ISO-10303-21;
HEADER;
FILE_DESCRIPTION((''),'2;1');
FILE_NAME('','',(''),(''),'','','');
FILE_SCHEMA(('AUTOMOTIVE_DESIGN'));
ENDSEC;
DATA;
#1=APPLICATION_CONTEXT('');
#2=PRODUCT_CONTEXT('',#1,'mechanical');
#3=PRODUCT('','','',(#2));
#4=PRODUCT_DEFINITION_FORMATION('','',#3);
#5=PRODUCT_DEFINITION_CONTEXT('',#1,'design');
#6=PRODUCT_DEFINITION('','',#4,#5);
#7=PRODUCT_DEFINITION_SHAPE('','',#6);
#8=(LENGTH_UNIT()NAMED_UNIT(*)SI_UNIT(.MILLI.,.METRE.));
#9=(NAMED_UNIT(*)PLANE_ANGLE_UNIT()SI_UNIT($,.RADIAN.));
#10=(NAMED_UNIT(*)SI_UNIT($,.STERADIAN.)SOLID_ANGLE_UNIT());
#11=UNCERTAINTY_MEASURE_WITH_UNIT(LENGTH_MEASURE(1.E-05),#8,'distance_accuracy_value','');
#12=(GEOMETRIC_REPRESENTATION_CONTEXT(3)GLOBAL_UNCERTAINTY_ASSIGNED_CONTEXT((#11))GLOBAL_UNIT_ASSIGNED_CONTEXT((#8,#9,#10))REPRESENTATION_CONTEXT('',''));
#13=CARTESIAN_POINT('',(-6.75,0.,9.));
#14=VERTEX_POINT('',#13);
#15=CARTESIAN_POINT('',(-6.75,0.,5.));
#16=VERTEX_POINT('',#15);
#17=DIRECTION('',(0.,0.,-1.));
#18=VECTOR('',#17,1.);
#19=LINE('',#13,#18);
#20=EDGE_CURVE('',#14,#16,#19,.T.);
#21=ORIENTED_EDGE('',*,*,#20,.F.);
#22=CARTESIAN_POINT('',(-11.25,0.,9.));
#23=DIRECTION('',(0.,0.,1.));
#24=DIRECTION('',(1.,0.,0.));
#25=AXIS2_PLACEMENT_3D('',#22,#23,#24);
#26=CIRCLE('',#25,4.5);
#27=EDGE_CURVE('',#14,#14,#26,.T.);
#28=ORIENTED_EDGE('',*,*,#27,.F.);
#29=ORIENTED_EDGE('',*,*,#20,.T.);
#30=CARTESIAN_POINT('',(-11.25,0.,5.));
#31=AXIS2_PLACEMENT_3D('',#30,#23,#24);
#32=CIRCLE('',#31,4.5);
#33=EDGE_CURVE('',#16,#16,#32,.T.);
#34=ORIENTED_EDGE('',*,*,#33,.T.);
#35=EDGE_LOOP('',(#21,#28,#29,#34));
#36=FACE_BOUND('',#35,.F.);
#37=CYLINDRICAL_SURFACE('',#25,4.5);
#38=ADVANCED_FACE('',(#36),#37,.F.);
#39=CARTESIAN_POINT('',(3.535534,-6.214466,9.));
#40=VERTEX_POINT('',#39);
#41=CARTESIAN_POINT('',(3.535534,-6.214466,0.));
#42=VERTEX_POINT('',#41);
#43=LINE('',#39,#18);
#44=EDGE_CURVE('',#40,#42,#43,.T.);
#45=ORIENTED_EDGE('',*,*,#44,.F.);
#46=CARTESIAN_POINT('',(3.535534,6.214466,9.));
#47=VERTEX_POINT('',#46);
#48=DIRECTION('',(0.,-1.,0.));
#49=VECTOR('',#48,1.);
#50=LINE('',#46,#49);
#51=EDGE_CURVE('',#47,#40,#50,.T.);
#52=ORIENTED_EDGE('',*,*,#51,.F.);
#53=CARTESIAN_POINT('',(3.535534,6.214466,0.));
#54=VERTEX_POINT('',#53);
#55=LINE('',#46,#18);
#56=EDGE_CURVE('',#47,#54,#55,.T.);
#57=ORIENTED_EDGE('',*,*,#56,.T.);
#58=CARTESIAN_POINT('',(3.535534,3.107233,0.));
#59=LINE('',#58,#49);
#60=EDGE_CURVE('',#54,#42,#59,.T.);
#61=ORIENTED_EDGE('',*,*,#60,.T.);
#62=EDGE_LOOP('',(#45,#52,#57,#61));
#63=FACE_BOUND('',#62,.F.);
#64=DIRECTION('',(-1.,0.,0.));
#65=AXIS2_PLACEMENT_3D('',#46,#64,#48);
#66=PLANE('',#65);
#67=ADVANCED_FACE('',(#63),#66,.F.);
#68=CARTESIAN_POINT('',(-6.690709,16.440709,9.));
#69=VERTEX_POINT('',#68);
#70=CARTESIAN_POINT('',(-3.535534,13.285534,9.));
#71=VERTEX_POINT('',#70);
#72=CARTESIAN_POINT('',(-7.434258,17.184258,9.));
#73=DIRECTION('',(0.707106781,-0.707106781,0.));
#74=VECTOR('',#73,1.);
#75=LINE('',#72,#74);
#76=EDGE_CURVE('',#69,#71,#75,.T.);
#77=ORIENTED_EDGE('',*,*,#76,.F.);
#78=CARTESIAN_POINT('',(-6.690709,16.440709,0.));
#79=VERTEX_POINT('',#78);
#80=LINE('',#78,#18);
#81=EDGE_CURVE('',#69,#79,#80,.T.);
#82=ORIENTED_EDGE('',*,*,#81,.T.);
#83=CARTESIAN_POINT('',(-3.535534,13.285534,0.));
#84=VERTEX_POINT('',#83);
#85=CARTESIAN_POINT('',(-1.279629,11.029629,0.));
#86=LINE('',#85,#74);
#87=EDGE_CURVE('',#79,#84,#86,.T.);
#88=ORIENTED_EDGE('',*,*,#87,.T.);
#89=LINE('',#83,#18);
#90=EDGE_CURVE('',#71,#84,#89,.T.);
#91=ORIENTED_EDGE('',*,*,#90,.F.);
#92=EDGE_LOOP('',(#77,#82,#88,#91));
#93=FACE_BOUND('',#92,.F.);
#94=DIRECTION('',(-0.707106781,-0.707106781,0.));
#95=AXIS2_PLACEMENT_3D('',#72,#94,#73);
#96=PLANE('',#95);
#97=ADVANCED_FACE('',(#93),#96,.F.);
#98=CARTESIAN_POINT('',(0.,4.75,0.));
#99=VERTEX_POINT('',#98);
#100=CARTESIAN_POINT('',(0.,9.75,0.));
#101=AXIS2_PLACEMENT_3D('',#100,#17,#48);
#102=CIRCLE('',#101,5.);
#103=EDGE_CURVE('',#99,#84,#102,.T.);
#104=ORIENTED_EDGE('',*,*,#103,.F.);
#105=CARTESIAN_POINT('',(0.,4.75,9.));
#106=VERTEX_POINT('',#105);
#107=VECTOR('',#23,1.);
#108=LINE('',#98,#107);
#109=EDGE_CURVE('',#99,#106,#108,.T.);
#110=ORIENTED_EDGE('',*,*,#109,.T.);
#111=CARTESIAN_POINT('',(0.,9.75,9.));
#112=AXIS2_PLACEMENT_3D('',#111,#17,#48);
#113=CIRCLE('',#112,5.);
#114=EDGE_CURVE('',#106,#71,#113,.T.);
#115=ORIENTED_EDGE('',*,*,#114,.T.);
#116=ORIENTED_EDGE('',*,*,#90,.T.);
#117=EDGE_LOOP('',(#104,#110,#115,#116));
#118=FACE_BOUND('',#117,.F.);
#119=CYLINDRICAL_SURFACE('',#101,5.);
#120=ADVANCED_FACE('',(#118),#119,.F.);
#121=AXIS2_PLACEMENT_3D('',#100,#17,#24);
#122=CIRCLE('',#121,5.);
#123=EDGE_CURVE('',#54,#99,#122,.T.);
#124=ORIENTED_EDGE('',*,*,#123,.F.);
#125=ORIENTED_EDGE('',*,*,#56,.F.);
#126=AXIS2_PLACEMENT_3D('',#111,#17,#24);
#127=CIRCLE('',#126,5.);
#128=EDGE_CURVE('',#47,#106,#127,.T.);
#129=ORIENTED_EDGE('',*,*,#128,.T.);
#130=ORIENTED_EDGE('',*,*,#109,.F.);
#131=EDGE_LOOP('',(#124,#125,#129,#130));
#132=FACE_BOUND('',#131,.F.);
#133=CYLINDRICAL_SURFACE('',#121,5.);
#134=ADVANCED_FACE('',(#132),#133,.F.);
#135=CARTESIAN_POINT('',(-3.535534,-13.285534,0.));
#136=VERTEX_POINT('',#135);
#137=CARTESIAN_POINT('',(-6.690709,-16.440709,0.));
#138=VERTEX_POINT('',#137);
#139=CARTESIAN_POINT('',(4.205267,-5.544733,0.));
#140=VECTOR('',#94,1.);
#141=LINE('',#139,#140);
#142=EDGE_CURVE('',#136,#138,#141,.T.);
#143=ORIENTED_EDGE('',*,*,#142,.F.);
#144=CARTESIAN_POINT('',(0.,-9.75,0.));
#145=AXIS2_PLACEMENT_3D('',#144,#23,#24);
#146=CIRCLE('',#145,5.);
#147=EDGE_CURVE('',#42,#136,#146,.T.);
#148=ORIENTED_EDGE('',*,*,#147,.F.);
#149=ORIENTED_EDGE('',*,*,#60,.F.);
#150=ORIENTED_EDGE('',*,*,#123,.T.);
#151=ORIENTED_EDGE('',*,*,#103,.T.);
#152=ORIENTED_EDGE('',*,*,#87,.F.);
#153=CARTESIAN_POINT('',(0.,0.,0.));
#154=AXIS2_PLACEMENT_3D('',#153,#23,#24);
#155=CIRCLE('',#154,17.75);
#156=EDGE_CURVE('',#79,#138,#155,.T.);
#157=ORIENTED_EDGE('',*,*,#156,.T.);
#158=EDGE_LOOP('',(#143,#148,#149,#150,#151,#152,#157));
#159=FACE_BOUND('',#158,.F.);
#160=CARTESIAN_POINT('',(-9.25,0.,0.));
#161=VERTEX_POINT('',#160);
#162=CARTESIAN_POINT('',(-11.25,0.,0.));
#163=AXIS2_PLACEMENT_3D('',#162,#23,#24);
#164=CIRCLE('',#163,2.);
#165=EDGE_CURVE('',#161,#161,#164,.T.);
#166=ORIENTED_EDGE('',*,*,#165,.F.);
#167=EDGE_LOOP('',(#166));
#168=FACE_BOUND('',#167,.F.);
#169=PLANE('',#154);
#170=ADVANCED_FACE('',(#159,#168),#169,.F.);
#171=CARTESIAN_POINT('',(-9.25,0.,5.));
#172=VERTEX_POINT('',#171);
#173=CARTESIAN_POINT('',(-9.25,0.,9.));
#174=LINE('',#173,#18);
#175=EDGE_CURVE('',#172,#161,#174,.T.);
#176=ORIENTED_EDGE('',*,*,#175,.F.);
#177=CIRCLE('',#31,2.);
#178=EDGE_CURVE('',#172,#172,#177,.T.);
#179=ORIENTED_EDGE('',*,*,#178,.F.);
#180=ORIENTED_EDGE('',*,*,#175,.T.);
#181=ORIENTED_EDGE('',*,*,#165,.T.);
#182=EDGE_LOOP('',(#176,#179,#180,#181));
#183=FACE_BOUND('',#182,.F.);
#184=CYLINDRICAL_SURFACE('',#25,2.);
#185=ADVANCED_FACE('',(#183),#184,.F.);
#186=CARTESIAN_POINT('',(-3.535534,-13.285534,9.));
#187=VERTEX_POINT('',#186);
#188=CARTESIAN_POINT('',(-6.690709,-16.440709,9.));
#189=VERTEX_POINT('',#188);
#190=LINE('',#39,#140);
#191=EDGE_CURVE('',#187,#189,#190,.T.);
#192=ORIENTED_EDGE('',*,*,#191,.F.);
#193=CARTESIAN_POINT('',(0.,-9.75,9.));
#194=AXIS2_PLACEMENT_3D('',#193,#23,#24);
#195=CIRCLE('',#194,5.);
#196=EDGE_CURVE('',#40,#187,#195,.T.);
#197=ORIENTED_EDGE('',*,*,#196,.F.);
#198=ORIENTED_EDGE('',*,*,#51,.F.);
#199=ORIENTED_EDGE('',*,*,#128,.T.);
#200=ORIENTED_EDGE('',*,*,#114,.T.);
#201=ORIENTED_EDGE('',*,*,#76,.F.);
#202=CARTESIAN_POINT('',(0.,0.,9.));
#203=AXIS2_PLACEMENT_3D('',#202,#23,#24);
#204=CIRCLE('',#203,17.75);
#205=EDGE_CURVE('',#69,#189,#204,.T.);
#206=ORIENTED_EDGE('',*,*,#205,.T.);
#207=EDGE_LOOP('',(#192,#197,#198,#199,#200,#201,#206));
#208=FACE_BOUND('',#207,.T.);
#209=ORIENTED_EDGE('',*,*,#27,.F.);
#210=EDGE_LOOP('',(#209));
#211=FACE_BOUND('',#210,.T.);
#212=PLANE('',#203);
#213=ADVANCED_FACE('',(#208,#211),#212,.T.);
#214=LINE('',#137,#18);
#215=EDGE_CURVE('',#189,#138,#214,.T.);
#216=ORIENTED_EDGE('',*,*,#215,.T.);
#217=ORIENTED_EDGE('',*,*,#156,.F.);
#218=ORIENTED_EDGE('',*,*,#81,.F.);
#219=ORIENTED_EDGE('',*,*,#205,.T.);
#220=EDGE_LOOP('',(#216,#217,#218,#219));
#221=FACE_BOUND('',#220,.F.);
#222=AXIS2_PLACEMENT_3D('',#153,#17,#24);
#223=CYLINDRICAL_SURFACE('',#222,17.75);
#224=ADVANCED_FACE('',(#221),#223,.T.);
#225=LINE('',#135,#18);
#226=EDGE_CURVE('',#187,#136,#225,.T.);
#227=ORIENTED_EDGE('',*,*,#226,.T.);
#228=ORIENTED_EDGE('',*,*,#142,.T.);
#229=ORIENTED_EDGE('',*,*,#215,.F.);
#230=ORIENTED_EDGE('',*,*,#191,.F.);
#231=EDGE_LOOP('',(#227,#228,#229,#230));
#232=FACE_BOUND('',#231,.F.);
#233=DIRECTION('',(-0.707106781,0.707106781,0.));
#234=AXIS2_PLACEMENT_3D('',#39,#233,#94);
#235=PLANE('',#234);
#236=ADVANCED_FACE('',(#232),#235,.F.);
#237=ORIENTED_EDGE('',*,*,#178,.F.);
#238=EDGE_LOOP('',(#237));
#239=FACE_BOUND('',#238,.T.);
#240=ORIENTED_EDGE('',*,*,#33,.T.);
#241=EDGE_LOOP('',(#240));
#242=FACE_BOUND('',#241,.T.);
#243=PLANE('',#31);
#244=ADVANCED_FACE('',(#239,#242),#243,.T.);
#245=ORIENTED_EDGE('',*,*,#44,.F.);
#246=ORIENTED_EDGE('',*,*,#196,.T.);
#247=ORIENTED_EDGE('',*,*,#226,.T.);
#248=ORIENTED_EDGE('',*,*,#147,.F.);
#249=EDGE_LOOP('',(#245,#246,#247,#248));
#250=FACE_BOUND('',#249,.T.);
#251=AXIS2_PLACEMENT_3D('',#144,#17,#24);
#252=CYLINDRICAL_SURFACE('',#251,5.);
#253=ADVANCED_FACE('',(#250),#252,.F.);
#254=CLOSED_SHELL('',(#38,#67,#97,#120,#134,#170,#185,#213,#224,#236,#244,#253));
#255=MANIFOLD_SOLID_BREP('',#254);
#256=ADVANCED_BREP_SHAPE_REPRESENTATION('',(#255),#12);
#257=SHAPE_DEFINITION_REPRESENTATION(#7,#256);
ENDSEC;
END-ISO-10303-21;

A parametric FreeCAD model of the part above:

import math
import FreeCAD as App
import Part
import Sketcher
from FreeCAD import Vector
Q = App.Units.Quantity

doc = App.newDocument("Part")
body = doc.addObject("PartDesign::Body", "Body")

sketch1 = body.newObject("Sketcher::SketchObject", "Sketch")
sketch1.AttachmentSupport = (doc.getObject("XY_Plane"), [""])
sketch1.MapMode = "FlatFace"
sketch1.addGeometry(Part.Circle(Vector(0, 0, 0), Vector(0, 0, 1), 18), False)
sketch1.addGeometry(Part.Circle(Vector(0, -10, 0), Vector(0, 0, 1), 5), False)
sketch1.addGeometry(Part.ArcOfCircle(Part.Circle(Vector(0, 10, 0), Vector(0, 0, 1), 5), math.radians(-90), math.radians(0)), False)
sketch1.addGeometry(Part.ArcOfCircle(Part.Circle(Vector(0, 10, 0), Vector(0, 0, 1), 5), math.radians(0), math.radians(270)), False)
sketch1.addConstraint(Sketcher.Constraint("Tangent", 2, 1, 3, 2))
sketch1.addConstraint(Sketcher.Constraint("Coincident", 3, 1, 2, 2))
sketch1.addConstraint(Sketcher.Constraint("Coincident", 0, 3, -1, 1))
sketch1.addConstraint(Sketcher.Constraint("Equal", 1, 2))
sketch1.addConstraint(Sketcher.Constraint("Symmetric", 1, 3, 2, 3, -1, 1))
sketch1.addConstraint(Sketcher.Constraint("PointOnObject", 1, 3, -2))
sketch1.addConstraint(Sketcher.Constraint("PointOnObject", 2, 1, -2))
sketch1.addConstraint(Sketcher.Constraint("Horizontal", 2, 3, 3, 1))
sketch1.addConstraint(Sketcher.Constraint("Diameter", 1, Q("10 mm")))
sketch1.addConstraint(Sketcher.Constraint("Diameter", 0, Q("35.5 mm")))
sketch1.addConstraint(Sketcher.Constraint("DistanceY", 1, 3, 2, 3, Q("19.5 mm")))
pad1 = body.newObject("PartDesign::Pad", "Pad")
pad1.Profile = sketch1
pad1.Length = 9

sketch2 = body.newObject("Sketcher::SketchObject", "Sketch001")
sketch2.AttachmentSupport = (doc.getObject("XY_Plane"), [""])
sketch2.MapMode = "FlatFace"
sketch2.AttachmentOffset = App.Placement(Vector(0, 0, 9), App.Rotation())
sketch2.addGeometry(Part.Circle(Vector(11.2, 0, 0), Vector(0, 0, 1), 2), False)
sketch2.addGeometry(Part.Circle(Vector(-11.2, 0, 0), Vector(0, 0, 1), 2), False)
sketch2.addConstraint(Sketcher.Constraint("Equal", 0, 1))
sketch2.addConstraint(Sketcher.Constraint("Symmetric", 0, 3, 1, 3, -1, 1))
sketch2.addConstraint(Sketcher.Constraint("PointOnObject", 0, 3, -1))
sketch2.addConstraint(Sketcher.Constraint("Diameter", 0, Q("4 mm")))
sketch2.addConstraint(Sketcher.Constraint("DistanceX", 1, 3, 0, 3, Q("22.5 mm")))
pocket1 = body.newObject("PartDesign::Pocket", "Pocket")
pocket1.Profile = sketch2
pocket1.Length = 25

sketch3 = body.newObject("Sketcher::SketchObject", "Sketch002")
sketch3.AttachmentSupport = (doc.getObject("XY_Plane"), [""])
sketch3.MapMode = "FlatFace"
sketch3.AttachmentOffset = App.Placement(Vector(0, 0, 9), App.Rotation())
sketch3.addGeometry(Part.Circle(Vector(11.2, 0, 0), Vector(0, 0, 1), 4.5), False)
sketch3.addGeometry(Part.Circle(Vector(-11.2, 0, 0), Vector(0, 0, 1), 4.5), False)
sketch3.addConstraint(Sketcher.Constraint("Equal", 0, 1))
sketch3.addConstraint(Sketcher.Constraint("Symmetric", 0, 3, 1, 3, -1, 1))
sketch3.addConstraint(Sketcher.Constraint("PointOnObject", 0, 3, -1))
sketch3.addConstraint(Sketcher.Constraint("Diameter", 0, Q("9 mm")))
sketch3.addConstraint(Sketcher.Constraint("DistanceX", 1, 3, 0, 3, Q("22.5 mm")))
pocket2 = body.newObject("PartDesign::Pocket", "Pocket001")
pocket2.Profile = sketch3
pocket2.Length = 4

sketch4 = body.newObject("Sketcher::SketchObject", "Sketch003")
sketch4.AttachmentSupport = (doc.getObject("XY_Plane"), [""])
sketch4.MapMode = "FlatFace"
sketch4.AttachmentOffset = App.Placement(Vector(0, 0, 9), App.Rotation())
sketch4.addGeometry(Part.Circle(Vector(11.2, 0, 0), Vector(0, 0, 1), 5), False)
sketch4.addConstraint(Sketcher.Constraint("PointOnObject", 0, 3, -1))
sketch4.addConstraint(Sketcher.Constraint("Diameter", 0, Q("9.99247 mm")))
sketch4.addConstraint(Sketcher.Constraint("DistanceX", -1, 1, 0, 3, Q("11.25 mm")))
pad2 = body.newObject("PartDesign::Pad", "Pad001")
pad2.Profile = sketch4
pad2.Length = 9
pad2.Reversed = True

sketch5 = body.newObject("Sketcher::SketchObject", "Sketch004")
sketch5.AttachmentSupport = (doc.getObject("XY_Plane"), [""])
sketch5.MapMode = "FlatFace"
sketch5.AttachmentOffset = App.Placement(Vector(0, 0, 9), App.Rotation())
sketch5.addGeometry(Part.Circle(Vector(9.5, 0, 0), Vector(0, 0, 1), 1.1), False)
sketch5.addConstraint(Sketcher.Constraint("PointOnObject", 0, 3, -1))
sketch5.addConstraint(Sketcher.Constraint("Diameter", 0, Q("2.3 mm")))
sketch5.addConstraint(Sketcher.Constraint("DistanceX", -1, 1, 0, 3, Q("9.5 mm")))
pocket3 = body.newObject("PartDesign::Pocket", "Pocket002")
pocket3.Profile = sketch5
pocket3.Length = 25

sketch6 = body.newObject("Sketcher::SketchObject", "Sketch005")
sketch6.AttachmentSupport = (doc.getObject("XY_Plane"), [""])
sketch6.MapMode = "FlatFace"
sketch6.AttachmentOffset = App.Placement(Vector(0, 0, 9), App.Rotation())
sketch6.addGeometry(Part.LineSegment(Vector(-7, 17, 0), Vector(4, 6, 0)), False)
sketch6.addGeometry(Part.LineSegment(Vector(4, 6, 0), Vector(4, -6, 0)), False)
sketch6.addGeometry(Part.LineSegment(Vector(4, -6, 0), Vector(-7, -17, 0)), False)
sketch6.addGeometry(Part.ArcOfCircle(Part.Circle(Vector(0, 0, 0), Vector(0, 0, 1), 19), math.radians(-113), math.radians(113)), False)
sketch6.addConstraint(Sketcher.Constraint("Coincident", 0, 2, 1, 1))
sketch6.addConstraint(Sketcher.Constraint("Coincident", 1, 2, 2, 1))
sketch6.addConstraint(Sketcher.Constraint("Coincident", 2, 2, 3, 1))
sketch6.addConstraint(Sketcher.Constraint("Coincident", 3, 2, 0, 1))
sketch6.addConstraint(Sketcher.Constraint("Vertical", 1))
sketch6.addConstraint(Sketcher.Constraint("Coincident", 3, 3, -1, 1))
sketch6.addConstraint(Sketcher.Constraint("Perpendicular", 0, 2))
sketch6.addConstraint(Sketcher.Constraint("Vertical", 2, 2, 3, 2))
sketch6.addConstraint(Sketcher.Constraint("Equal", 0, 2))
sketch6.addConstraint(Sketcher.Constraint("Radius", 3, Q("18.723432 mm")))
sketch6.addConstraint(Sketcher.Constraint("Distance", 0, Q("15.513629 mm")))
sketch6.addConstraint(Sketcher.Constraint("DistanceY", 1, 2, 1, 1, Q("12.428932 mm")))
pocket4 = body.newObject("PartDesign::Pocket", "Pocket003")
pocket4.Profile = sketch6
pocket4.Length = 25

doc.recompute()
